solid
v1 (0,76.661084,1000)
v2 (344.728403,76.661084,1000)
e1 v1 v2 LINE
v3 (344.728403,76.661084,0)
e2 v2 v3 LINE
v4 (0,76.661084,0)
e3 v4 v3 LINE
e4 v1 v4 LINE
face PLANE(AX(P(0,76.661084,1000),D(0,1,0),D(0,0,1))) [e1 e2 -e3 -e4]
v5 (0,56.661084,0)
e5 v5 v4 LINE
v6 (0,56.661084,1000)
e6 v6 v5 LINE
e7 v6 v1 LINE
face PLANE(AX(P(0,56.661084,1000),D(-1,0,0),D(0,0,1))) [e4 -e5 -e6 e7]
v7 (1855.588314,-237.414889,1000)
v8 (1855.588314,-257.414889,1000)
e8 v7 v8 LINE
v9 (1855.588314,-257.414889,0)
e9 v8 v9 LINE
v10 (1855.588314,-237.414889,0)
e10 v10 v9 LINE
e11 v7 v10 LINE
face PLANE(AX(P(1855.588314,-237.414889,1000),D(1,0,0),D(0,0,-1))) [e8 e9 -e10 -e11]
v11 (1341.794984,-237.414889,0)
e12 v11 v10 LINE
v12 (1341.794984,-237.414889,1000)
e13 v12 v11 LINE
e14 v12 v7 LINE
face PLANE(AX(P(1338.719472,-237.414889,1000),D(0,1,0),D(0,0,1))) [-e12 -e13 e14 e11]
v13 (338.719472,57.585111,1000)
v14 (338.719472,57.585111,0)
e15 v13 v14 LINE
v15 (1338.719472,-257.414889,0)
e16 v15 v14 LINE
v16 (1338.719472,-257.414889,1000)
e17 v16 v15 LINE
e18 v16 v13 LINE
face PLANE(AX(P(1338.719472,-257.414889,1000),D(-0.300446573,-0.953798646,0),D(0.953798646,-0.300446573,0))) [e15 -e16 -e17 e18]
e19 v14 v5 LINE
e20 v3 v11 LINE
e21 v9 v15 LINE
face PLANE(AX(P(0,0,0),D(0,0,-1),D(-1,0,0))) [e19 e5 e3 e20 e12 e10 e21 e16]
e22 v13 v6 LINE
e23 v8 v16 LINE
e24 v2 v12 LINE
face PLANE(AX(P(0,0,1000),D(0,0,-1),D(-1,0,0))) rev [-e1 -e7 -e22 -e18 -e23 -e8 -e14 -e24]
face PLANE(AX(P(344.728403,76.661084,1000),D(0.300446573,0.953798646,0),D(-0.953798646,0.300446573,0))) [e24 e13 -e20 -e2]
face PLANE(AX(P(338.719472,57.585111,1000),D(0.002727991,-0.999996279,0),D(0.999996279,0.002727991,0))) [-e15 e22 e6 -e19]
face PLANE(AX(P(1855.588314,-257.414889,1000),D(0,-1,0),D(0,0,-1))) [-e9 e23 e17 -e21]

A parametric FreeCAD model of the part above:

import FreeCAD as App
import Part
import Sketcher
from FreeCAD import Vector

doc = App.newDocument("Part")
body = doc.addObject("PartDesign::Body", "Body")

# Sketch on XY plane
sketch1 = doc.addObject("Sketcher::SketchObject", "Sketch")
body.addObject(sketch1)
sketch1.AttachmentSupport = (doc.XY_Plane, [""])
sketch1.MapMode = "FlatFace"
sketch1.addGeometry(Part.LineSegment(Vector(0, 76.661084, 0), Vector(0, 56.661084, 0)), False)
sketch1.addGeometry(Part.LineSegment(Vector(0, 56.661084, 0), Vector(338.719472, 57.585111, 0)), False)
sketch1.addGeometry(Part.LineSegment(Vector(338.719472, 57.585111, 0), Vector(1338.719472, -257.414889, 0)), False)
sketch1.addGeometry(Part.LineSegment(Vector(1338.719472, -257.414889, 0), Vector(1855.588314, -257.414889, 0)), False)
sketch1.addGeometry(Part.LineSegment(Vector(1855.588314, -257.414889, 0), Vector(1855.588314, -237.414889, 0)), False)
sketch1.addGeometry(Part.LineSegment(Vector(1855.588314, -237.414889, 0), Vector(1341.794984, -237.414889, 0)), False)
sketch1.addGeometry(Part.LineSegment(Vector(1341.794984, -237.414889, 0), Vector(344.728403, 76.661084, 0)), False)
sketch1.addGeometry(Part.LineSegment(Vector(344.728403, 76.661084, 0), Vector(0, 76.661084, 0)), False)
sketch1.addConstraint(Sketcher.Constraint("Coincident", 0, 2, 1, 1))
sketch1.addConstraint(Sketcher.Constraint("Coincident", 1, 2, 2, 1))
sketch1.addConstraint(Sketcher.Constraint("Coincident", 2, 2, 3, 1))
sketch1.addConstraint(Sketcher.Constraint("Coincident", 3, 2, 4, 1))
sketch1.addConstraint(Sketcher.Constraint("Coincident", 4, 2, 5, 1))
sketch1.addConstraint(Sketcher.Constraint("Coincident", 5, 2, 6, 1))
sketch1.addConstraint(Sketcher.Constraint("Coincident", 6, 2, 7, 1))
sketch1.addConstraint(Sketcher.Constraint("Coincident", 7, 2, 0, 1))
sketch1.addConstraint(Sketcher.Constraint("Vertical", 0))
sketch1.addConstraint(Sketcher.Constraint("Horizontal", 3))
sketch1.addConstraint(Sketcher.Constraint("Vertical", 4))
sketch1.addConstraint(Sketcher.Constraint("Horizontal", 5))
sketch1.addConstraint(Sketcher.Constraint("Horizontal", 7))
sketch1.addConstraint(Sketcher.Constraint("PointOnObject", 0, 2, -2))
sketch1.addConstraint(Sketcher.Constraint("Parallel", 2, 6))
sketch1.addConstraint(Sketcher.Constraint("Equal", 0, 4))
sketch1.addConstraint(Sketcher.Constraint("DistanceY", 0, 2, 0, 1, 20.0))
sketch1.addConstraint(Sketcher.Constraint("DistanceX", 1, 2, 2, 2, 1000.0))
sketch1.addConstraint(Sketcher.Constraint("DistanceY", 2, 2, 1, 2, 315.0))
sketch1.addConstraint(Sketcher.Constraint("DistanceX", 5, 2, 5, 1, 513.79333))
sketch1.addConstraint(Sketcher.Constraint("DistanceX", 3, 1, 3, 2, 516.868843))
sketch1.addConstraint(Sketcher.Constraint("DistanceX", 7, 2, 7, 1, 344.728403))
sketch1.addConstraint(Sketcher.Constraint("DistanceX", -1, 1, 1, 2, 338.719472))
sketch1.addConstraint(Sketcher.Constraint("DistanceY", -1, 1, 1, 2, 57.585111))
pad1 = doc.addObject("PartDesign::Pad", "Pad")
body.addObject(pad1)
pad1.Profile = sketch1
pad1.Length = 1000

doc.recompute()
